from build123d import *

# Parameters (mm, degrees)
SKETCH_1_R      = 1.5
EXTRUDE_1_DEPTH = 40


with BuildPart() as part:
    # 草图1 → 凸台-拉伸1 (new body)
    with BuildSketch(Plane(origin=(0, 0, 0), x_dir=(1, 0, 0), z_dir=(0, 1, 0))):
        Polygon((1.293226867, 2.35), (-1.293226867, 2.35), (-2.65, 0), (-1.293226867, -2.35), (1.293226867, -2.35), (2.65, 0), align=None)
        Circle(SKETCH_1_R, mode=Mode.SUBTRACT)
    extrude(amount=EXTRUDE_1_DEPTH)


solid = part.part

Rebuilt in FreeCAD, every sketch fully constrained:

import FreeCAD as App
import Part
import Sketcher

V = App.Vector
Q = App.Units.Quantity

doc = App.newDocument("Part")
body = doc.addObject("PartDesign::Body", "Body")

sketch1 = doc.addObject("Sketcher::SketchObject", "Sketch")
body.addObject(sketch1)
sketch1.AttachmentSupport = (doc.XZ_Plane, [""])
sketch1.MapMode = "FlatFace"
sketch1.addGeometry(Part.LineSegment(V(1.3, -2.4, 0), V(-1.3, -2.4, 0)), False)
sketch1.addGeometry(Part.LineSegment(V(-1.3, -2.4, 0), V(-2.6, 0, 0)), False)
sketch1.addGeometry(Part.LineSegment(V(-2.6, 0, 0), V(-1.3, 2.4, 0)), False)
sketch1.addGeometry(Part.LineSegment(V(-1.3, 2.4, 0), V(1.3, 2.4, 0)), False)
sketch1.addGeometry(Part.LineSegment(V(1.3, 2.4, 0), V(2.6, 0, 0)), False)
sketch1.addGeometry(Part.LineSegment(V(2.6, 0, 0), V(1.3, -2.4, 0)), False)
sketch1.addGeometry(Part.Circle(V(0, 0, 0), V(0, 0, 1), 1.5), False)
sketch1.addConstraint(Sketcher.Constraint("Coincident", 0, 2, 1, 1))
sketch1.addConstraint(Sketcher.Constraint("Coincident", 1, 2, 2, 1))
sketch1.addConstraint(Sketcher.Constraint("Coincident", 2, 2, 3, 1))
sketch1.addConstraint(Sketcher.Constraint("Coincident", 3, 2, 4, 1))
sketch1.addConstraint(Sketcher.Constraint("Coincident", 4, 2, 5, 1))
sketch1.addConstraint(Sketcher.Constraint("Coincident", 5, 2, 0, 1))
sketch1.addConstraint(Sketcher.Constraint("Horizontal", 0))
sketch1.addConstraint(Sketcher.Constraint("Horizontal", 3))
sketch1.addConstraint(Sketcher.Constraint("Coincident", 6, 3, -1, 1))
sketch1.addConstraint(Sketcher.Constraint("Symmetric", 0, 2, 3, 2, -1, 1))
sketch1.addConstraint(Sketcher.Constraint("Symmetric", 1, 2, 4, 2, -1, 1))
sketch1.addConstraint(Sketcher.Constraint("PointOnObject", 1, 2, -1))
sketch1.addConstraint(Sketcher.Constraint("Parallel", 2, 5))
sketch1.addConstraint(Sketcher.Constraint("Vertical", 0, 2, 2, 2))
sketch1.addConstraint(Sketcher.Constraint("Diameter", 6, 3.0))
sketch1.addConstraint(Sketcher.Constraint("Angle", 1, Q("120 deg")))
sketch1.addConstraint(Sketcher.Constraint("DistanceY", 0, 2, 2, 2, 4.7))
sketch1.addConstraint(Sketcher.Constraint("DistanceX", 1, 2, 4, 2, 5.3))
pad1 = doc.addObject("PartDesign::Pad", "Pad")
body.addObject(pad1)
pad1.Profile = sketch1
pad1.Length = 40
pad1.Reversed = True

doc.recompute()
